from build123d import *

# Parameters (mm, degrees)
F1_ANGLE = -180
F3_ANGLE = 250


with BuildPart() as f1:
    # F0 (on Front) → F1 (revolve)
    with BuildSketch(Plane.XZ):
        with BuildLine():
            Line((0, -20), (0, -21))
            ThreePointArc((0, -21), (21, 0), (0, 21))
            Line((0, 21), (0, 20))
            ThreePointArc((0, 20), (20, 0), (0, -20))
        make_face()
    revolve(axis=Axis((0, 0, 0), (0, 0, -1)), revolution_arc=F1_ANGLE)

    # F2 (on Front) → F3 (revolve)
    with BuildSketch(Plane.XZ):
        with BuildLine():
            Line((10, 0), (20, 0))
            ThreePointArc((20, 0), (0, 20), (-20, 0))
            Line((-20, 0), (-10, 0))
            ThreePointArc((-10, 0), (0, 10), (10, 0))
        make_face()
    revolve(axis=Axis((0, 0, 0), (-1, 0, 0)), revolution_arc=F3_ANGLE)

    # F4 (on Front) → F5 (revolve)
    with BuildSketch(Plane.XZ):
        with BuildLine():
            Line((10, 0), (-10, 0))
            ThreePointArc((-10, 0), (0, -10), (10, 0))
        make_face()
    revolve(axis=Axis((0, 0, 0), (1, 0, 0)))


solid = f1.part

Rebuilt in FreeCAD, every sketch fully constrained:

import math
import FreeCAD as App
import Part
import Sketcher
Q = App.Units.Quantity

doc = App.newDocument("Part")
body = doc.addObject("PartDesign::Body", "Body")

sketch1 = doc.addObject("Sketcher::SketchObject", "Sketch")
body.addObject(sketch1)
sketch1.AttachmentSupport = (doc.XZ_Plane, [""])
sketch1.MapMode = "FlatFace"
sketch1.addGeometry([
    Part.LineSegment(App.Vector(0, -20, 0), App.Vector(0, -21, 0)),
    Part.ArcOfCircle(Part.Circle(App.Vector(0, 0, 0), App.Vector(0, 0, 1), 21), math.radians(-90), math.radians(90)),
    Part.LineSegment(App.Vector(0, 21, 0), App.Vector(0, 20, 0)),
    Part.ArcOfCircle(Part.Circle(App.Vector(0, 0, 0), App.Vector(0, 0, 1), 20), math.radians(-90), math.radians(90)),
], False)
sketch1.addConstraint([
    Sketcher.Constraint("Coincident", 0, 2, 1, 1),
    Sketcher.Constraint("Coincident", 1, 2, 2, 1),
    Sketcher.Constraint("Coincident", 2, 2, 3, 2),
    Sketcher.Constraint("Coincident", 3, 1, 0, 1),
    Sketcher.Constraint("Vertical", 0),
    Sketcher.Constraint("Vertical", 2),
    Sketcher.Constraint("Coincident", 1, 3, -1, 1),
    Sketcher.Constraint("Coincident", 3, 3, -1, 1),
    Sketcher.Constraint("PointOnObject", 0, 2, -2),
    Sketcher.Constraint("PointOnObject", 1, 2, -2),
    Sketcher.Constraint("Radius", 1, Q("21 mm")),
    Sketcher.Constraint("Radius", 3, Q("20 mm")),
])
revolution = doc.addObject("PartDesign::Revolution", "Revolution")
body.addObject(revolution)
revolution.Profile = sketch1
revolution.ReferenceAxis = (sketch1, ["V_Axis"])
revolution.Angle = 180

sketch2 = doc.addObject("Sketcher::SketchObject", "Sketch001")
body.addObject(sketch2)
sketch2.AttachmentSupport = (doc.XZ_Plane, [""])
sketch2.MapMode = "FlatFace"
sketch2.addGeometry([
    Part.LineSegment(App.Vector(10, 0, 0), App.Vector(20, 0, 0)),
    Part.ArcOfCircle(Part.Circle(App.Vector(0, 0, 0), App.Vector(0, 0, 1), 20), math.radians(0), math.radians(180)),
    Part.LineSegment(App.Vector(-20, 0, 0), App.Vector(-10, 0, 0)),
    Part.ArcOfCircle(Part.Circle(App.Vector(0, 0, 0), App.Vector(0, 0, 1), 10), math.radians(0), math.radians(180)),
], False)
sketch2.addConstraint([
    Sketcher.Constraint("Coincident", 0, 2, 1, 1),
    Sketcher.Constraint("Coincident", 1, 2, 2, 1),
    Sketcher.Constraint("Coincident", 2, 2, 3, 2),
    Sketcher.Constraint("Coincident", 3, 1, 0, 1),
    Sketcher.Constraint("Horizontal", 0),
    Sketcher.Constraint("Horizontal", 2),
    Sketcher.Constraint("Coincident", 1, 3, -1, 1),
    Sketcher.Constraint("Coincident", 3, 3, -1, 1),
    Sketcher.Constraint("PointOnObject", 0, 2, -1),
    Sketcher.Constraint("PointOnObject", 1, 2, -1),
    Sketcher.Constraint("Radius", 1, Q("20 mm")),
    Sketcher.Constraint("Radius", 3, Q("10 mm")),
])
revolution2 = doc.addObject("PartDesign::Revolution", "Revolution001")
body.addObject(revolution2)
revolution2.Profile = sketch2
revolution2.ReferenceAxis = (sketch2, ["H_Axis"])
revolution2.Angle = 250
revolution2.Reversed = True

sketch3 = doc.addObject("Sketcher::SketchObject", "Sketch002")
body.addObject(sketch3)
sketch3.AttachmentSupport = (doc.XZ_Plane, [""])
sketch3.MapMode = "FlatFace"
sketch3.addGeometry([
    Part.LineSegment(App.Vector(10, 0, 0), App.Vector(-10, 0, 0)),
    Part.ArcOfCircle(Part.Circle(App.Vector(0, 0, 0), App.Vector(0, 0, 1), 10), math.radians(180), math.radians(360)),
], False)
sketch3.addConstraint([
    Sketcher.Constraint("Coincident", 0, 1, 1, 2),
    Sketcher.Constraint("Coincident", 1, 1, 0, 2),
    Sketcher.Constraint("Horizontal", 0),
    Sketcher.Constraint("Coincident", 1, 3, -1, 1),
    Sketcher.Constraint("PointOnObject", 0, 1, -1),
    Sketcher.Constraint("Radius", 1, Q("10 mm")),
])
revolution3 = doc.addObject("PartDesign::Revolution", "Revolution002")
body.addObject(revolution3)
revolution3.Profile = sketch3
revolution3.ReferenceAxis = (sketch3, ["H_Axis"])
revolution3.Angle = 360

doc.recompute()
